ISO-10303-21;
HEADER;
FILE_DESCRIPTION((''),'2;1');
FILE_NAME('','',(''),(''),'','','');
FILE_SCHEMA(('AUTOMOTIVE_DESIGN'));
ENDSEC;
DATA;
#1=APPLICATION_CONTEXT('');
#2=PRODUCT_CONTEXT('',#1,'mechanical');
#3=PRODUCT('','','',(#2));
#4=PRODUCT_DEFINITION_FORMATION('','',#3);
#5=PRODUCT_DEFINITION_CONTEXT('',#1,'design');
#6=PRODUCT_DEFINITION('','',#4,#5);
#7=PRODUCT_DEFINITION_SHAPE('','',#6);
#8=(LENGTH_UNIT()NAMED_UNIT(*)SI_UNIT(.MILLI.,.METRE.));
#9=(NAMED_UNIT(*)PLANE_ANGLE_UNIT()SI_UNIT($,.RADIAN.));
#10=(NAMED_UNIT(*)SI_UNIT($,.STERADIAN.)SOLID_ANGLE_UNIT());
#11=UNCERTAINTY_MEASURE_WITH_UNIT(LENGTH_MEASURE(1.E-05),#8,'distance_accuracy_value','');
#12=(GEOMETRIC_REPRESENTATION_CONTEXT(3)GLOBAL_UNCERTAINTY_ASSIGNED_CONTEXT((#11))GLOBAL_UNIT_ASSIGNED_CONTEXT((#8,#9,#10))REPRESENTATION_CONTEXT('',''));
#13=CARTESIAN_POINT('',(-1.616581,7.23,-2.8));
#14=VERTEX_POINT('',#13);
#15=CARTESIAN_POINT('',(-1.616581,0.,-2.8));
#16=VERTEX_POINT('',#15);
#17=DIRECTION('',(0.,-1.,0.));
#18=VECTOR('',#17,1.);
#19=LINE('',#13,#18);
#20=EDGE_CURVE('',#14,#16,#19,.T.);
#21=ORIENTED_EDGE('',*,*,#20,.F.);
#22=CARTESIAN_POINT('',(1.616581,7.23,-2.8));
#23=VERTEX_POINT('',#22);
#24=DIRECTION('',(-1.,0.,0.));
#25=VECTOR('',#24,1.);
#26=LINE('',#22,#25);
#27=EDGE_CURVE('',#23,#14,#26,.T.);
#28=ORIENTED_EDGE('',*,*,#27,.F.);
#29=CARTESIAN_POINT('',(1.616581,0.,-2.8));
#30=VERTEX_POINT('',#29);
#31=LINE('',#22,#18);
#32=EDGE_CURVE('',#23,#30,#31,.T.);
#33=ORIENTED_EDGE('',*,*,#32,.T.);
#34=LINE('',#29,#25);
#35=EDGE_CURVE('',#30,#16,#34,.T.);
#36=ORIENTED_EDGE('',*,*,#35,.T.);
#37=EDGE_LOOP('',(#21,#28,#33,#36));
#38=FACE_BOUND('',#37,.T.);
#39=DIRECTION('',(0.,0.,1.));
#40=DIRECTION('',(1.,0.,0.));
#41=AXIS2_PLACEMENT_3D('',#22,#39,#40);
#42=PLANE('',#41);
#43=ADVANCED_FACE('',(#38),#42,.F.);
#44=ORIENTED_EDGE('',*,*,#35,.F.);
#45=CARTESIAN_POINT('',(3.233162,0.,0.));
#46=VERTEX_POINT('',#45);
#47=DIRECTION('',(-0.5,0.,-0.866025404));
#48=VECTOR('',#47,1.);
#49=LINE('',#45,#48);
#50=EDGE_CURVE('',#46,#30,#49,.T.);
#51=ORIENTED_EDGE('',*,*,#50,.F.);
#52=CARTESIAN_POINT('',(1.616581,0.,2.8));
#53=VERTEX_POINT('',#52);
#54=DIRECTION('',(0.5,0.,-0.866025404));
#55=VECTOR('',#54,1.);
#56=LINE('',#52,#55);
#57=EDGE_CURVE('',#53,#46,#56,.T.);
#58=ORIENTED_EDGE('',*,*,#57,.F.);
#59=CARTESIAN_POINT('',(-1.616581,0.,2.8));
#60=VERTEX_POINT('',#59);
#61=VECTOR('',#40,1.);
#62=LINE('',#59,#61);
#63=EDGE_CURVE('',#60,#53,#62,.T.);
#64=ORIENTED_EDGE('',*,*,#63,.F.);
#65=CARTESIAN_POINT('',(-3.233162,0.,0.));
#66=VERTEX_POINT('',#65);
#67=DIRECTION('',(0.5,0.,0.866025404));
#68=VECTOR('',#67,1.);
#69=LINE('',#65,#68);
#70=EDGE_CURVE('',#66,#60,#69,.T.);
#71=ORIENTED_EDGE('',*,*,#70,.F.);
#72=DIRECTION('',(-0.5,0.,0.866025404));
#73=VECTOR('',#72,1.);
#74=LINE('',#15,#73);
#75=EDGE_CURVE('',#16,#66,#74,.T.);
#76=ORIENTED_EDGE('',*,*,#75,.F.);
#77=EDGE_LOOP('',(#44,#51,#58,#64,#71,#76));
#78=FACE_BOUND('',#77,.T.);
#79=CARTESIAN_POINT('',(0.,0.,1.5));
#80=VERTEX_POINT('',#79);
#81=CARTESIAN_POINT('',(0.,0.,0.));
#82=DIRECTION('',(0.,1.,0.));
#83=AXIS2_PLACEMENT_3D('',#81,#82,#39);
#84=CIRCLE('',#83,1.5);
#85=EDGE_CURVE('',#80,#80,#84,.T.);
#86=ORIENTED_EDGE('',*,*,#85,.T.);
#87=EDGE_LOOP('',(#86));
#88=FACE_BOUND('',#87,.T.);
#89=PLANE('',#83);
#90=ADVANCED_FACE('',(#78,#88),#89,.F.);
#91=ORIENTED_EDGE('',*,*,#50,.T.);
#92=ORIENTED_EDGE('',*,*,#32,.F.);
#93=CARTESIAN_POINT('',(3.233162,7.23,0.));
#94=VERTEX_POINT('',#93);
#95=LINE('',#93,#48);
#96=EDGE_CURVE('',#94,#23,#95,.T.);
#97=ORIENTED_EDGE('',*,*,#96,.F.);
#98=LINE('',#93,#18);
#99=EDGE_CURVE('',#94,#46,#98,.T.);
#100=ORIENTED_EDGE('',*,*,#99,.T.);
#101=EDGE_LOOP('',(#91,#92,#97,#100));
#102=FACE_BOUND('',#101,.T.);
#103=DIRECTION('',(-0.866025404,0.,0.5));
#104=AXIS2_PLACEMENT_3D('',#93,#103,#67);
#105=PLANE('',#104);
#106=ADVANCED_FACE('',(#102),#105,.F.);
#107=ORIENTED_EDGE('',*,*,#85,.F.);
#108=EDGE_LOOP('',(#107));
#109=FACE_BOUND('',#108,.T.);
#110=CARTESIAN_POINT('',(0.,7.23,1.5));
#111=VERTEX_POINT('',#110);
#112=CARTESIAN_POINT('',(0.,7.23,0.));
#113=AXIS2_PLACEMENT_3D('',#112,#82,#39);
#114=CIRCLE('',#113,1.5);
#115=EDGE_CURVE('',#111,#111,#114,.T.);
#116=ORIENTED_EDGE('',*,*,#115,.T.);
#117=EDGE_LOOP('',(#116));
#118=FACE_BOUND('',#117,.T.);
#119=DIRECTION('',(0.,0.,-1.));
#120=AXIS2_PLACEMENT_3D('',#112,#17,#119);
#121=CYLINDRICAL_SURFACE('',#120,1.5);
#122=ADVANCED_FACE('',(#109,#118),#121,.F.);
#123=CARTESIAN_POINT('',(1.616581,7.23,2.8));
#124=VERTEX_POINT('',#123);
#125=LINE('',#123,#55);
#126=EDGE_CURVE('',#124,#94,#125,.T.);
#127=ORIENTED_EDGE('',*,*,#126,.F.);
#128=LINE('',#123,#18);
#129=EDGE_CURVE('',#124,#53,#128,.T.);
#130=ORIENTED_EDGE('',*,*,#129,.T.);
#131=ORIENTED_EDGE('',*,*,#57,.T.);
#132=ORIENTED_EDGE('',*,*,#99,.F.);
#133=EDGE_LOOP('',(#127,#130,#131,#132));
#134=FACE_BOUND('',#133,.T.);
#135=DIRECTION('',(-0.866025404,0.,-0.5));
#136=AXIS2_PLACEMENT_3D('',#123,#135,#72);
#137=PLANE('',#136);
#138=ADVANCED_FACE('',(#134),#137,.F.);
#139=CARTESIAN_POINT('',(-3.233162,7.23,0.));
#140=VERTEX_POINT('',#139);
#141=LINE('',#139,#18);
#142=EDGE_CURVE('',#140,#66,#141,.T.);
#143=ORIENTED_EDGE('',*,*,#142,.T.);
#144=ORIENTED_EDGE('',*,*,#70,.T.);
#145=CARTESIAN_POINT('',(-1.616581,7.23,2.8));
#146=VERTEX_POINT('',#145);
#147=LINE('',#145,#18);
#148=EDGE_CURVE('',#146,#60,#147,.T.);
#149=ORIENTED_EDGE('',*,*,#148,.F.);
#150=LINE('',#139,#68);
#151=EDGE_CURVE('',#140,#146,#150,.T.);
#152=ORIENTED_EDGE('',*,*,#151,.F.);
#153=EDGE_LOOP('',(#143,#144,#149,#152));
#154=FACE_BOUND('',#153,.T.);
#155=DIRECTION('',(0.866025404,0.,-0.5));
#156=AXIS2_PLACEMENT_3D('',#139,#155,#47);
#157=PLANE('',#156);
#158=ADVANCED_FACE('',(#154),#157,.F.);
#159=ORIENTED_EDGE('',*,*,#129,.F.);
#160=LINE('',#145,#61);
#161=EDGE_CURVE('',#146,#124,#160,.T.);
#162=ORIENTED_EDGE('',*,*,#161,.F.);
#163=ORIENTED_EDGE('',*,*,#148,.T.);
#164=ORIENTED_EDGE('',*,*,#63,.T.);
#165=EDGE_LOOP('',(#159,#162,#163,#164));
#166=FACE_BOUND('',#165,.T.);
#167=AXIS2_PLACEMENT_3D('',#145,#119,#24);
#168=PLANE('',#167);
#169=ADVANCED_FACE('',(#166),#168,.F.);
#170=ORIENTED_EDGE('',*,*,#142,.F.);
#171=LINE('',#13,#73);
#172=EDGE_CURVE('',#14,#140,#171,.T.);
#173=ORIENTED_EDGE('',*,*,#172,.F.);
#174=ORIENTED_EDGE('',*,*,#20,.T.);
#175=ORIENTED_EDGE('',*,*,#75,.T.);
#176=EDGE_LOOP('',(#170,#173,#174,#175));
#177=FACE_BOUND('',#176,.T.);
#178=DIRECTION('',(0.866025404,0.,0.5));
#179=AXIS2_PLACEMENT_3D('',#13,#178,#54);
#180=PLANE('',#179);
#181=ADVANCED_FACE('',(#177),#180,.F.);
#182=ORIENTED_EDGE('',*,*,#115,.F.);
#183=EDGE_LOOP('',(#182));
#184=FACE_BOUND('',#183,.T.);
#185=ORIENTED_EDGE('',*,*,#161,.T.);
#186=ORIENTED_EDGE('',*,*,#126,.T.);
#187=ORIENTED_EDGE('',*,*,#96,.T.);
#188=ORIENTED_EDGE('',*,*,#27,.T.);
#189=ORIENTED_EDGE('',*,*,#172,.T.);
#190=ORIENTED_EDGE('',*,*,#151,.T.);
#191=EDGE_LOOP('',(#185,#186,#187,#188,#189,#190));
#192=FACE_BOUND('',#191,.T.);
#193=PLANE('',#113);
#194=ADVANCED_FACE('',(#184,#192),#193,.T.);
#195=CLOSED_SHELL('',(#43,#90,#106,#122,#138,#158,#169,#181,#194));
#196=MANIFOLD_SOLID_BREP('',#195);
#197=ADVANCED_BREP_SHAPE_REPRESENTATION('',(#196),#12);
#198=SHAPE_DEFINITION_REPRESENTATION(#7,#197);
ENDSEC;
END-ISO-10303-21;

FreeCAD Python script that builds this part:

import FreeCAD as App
import Part
import Sketcher
from FreeCAD import Vector
Q = App.Units.Quantity

doc = App.newDocument("Part")
body = doc.addObject("PartDesign::Body", "Body")

# Sketch on XZ plane
sketch1 = doc.addObject("Sketcher::SketchObject", "Sketch")
body.addObject(sketch1)
sketch1.AttachmentSupport = (doc.XZ_Plane, [""])
sketch1.MapMode = "FlatFace"
sketch1.addGeometry([
    Part.LineSegment(Vector(3.2, 0, 0), Vector(1.6, -2.8, 0)),  # 0
    Part.LineSegment(Vector(1.6, -2.8, 0), Vector(-1.6, -2.8, 0)),  # 1
    Part.LineSegment(Vector(-1.6, -2.8, 0), Vector(-3.2, 0, 0)),  # 2
    Part.LineSegment(Vector(-3.2, 0, 0), Vector(-1.6, 2.8, 0)),  # 3
    Part.LineSegment(Vector(-1.6, 2.8, 0), Vector(1.6, 2.8, 0)),  # 4
    Part.LineSegment(Vector(1.6, 2.8, 0), Vector(3.2, 0, 0)),  # 5
    Part.Circle(Vector(0, 0, 0), Vector(0, 0, 1), 1.5),  # 6
], False)
sketch1.addConstraint([
    Sketcher.Constraint("Coincident", 0, 2, 1, 1),
    Sketcher.Constraint("Coincident", 1, 2, 2, 1),
    Sketcher.Constraint("Coincident", 2, 2, 3, 1),
    Sketcher.Constraint("Coincident", 3, 2, 4, 1),
    Sketcher.Constraint("Coincident", 4, 2, 5, 1),
    Sketcher.Constraint("Coincident", 5, 2, 0, 1),
    Sketcher.Constraint("Horizontal", 1),
    Sketcher.Constraint("Horizontal", 4),
    Sketcher.Constraint("Coincident", 6, 3, -1, 1),
    Sketcher.Constraint("Symmetric", 0, 2, 3, 2, -1, 1),
    Sketcher.Constraint("Symmetric", 2, 2, 5, 2, -1, 1),
    Sketcher.Constraint("PointOnObject", 2, 2, -1),
    Sketcher.Constraint("Parallel", 2, 5),
    Sketcher.Constraint("Vertical", 1, 2, 3, 2),
    Sketcher.Constraint("Diameter", 6, 3.0),
    Sketcher.Constraint("Angle", 0, Q("-120 deg")),
    Sketcher.Constraint("DistanceY", 0, 2, -1, 1, 2.8),
    Sketcher.Constraint("DistanceX", 1, 2, 1, 1, 3.233162),
])
pad1 = doc.addObject("PartDesign::Pad", "Pad")
body.addObject(pad1)
pad1.Profile = sketch1
pad1.Length = 7.23
pad1.Reversed = True

doc.recompute()
